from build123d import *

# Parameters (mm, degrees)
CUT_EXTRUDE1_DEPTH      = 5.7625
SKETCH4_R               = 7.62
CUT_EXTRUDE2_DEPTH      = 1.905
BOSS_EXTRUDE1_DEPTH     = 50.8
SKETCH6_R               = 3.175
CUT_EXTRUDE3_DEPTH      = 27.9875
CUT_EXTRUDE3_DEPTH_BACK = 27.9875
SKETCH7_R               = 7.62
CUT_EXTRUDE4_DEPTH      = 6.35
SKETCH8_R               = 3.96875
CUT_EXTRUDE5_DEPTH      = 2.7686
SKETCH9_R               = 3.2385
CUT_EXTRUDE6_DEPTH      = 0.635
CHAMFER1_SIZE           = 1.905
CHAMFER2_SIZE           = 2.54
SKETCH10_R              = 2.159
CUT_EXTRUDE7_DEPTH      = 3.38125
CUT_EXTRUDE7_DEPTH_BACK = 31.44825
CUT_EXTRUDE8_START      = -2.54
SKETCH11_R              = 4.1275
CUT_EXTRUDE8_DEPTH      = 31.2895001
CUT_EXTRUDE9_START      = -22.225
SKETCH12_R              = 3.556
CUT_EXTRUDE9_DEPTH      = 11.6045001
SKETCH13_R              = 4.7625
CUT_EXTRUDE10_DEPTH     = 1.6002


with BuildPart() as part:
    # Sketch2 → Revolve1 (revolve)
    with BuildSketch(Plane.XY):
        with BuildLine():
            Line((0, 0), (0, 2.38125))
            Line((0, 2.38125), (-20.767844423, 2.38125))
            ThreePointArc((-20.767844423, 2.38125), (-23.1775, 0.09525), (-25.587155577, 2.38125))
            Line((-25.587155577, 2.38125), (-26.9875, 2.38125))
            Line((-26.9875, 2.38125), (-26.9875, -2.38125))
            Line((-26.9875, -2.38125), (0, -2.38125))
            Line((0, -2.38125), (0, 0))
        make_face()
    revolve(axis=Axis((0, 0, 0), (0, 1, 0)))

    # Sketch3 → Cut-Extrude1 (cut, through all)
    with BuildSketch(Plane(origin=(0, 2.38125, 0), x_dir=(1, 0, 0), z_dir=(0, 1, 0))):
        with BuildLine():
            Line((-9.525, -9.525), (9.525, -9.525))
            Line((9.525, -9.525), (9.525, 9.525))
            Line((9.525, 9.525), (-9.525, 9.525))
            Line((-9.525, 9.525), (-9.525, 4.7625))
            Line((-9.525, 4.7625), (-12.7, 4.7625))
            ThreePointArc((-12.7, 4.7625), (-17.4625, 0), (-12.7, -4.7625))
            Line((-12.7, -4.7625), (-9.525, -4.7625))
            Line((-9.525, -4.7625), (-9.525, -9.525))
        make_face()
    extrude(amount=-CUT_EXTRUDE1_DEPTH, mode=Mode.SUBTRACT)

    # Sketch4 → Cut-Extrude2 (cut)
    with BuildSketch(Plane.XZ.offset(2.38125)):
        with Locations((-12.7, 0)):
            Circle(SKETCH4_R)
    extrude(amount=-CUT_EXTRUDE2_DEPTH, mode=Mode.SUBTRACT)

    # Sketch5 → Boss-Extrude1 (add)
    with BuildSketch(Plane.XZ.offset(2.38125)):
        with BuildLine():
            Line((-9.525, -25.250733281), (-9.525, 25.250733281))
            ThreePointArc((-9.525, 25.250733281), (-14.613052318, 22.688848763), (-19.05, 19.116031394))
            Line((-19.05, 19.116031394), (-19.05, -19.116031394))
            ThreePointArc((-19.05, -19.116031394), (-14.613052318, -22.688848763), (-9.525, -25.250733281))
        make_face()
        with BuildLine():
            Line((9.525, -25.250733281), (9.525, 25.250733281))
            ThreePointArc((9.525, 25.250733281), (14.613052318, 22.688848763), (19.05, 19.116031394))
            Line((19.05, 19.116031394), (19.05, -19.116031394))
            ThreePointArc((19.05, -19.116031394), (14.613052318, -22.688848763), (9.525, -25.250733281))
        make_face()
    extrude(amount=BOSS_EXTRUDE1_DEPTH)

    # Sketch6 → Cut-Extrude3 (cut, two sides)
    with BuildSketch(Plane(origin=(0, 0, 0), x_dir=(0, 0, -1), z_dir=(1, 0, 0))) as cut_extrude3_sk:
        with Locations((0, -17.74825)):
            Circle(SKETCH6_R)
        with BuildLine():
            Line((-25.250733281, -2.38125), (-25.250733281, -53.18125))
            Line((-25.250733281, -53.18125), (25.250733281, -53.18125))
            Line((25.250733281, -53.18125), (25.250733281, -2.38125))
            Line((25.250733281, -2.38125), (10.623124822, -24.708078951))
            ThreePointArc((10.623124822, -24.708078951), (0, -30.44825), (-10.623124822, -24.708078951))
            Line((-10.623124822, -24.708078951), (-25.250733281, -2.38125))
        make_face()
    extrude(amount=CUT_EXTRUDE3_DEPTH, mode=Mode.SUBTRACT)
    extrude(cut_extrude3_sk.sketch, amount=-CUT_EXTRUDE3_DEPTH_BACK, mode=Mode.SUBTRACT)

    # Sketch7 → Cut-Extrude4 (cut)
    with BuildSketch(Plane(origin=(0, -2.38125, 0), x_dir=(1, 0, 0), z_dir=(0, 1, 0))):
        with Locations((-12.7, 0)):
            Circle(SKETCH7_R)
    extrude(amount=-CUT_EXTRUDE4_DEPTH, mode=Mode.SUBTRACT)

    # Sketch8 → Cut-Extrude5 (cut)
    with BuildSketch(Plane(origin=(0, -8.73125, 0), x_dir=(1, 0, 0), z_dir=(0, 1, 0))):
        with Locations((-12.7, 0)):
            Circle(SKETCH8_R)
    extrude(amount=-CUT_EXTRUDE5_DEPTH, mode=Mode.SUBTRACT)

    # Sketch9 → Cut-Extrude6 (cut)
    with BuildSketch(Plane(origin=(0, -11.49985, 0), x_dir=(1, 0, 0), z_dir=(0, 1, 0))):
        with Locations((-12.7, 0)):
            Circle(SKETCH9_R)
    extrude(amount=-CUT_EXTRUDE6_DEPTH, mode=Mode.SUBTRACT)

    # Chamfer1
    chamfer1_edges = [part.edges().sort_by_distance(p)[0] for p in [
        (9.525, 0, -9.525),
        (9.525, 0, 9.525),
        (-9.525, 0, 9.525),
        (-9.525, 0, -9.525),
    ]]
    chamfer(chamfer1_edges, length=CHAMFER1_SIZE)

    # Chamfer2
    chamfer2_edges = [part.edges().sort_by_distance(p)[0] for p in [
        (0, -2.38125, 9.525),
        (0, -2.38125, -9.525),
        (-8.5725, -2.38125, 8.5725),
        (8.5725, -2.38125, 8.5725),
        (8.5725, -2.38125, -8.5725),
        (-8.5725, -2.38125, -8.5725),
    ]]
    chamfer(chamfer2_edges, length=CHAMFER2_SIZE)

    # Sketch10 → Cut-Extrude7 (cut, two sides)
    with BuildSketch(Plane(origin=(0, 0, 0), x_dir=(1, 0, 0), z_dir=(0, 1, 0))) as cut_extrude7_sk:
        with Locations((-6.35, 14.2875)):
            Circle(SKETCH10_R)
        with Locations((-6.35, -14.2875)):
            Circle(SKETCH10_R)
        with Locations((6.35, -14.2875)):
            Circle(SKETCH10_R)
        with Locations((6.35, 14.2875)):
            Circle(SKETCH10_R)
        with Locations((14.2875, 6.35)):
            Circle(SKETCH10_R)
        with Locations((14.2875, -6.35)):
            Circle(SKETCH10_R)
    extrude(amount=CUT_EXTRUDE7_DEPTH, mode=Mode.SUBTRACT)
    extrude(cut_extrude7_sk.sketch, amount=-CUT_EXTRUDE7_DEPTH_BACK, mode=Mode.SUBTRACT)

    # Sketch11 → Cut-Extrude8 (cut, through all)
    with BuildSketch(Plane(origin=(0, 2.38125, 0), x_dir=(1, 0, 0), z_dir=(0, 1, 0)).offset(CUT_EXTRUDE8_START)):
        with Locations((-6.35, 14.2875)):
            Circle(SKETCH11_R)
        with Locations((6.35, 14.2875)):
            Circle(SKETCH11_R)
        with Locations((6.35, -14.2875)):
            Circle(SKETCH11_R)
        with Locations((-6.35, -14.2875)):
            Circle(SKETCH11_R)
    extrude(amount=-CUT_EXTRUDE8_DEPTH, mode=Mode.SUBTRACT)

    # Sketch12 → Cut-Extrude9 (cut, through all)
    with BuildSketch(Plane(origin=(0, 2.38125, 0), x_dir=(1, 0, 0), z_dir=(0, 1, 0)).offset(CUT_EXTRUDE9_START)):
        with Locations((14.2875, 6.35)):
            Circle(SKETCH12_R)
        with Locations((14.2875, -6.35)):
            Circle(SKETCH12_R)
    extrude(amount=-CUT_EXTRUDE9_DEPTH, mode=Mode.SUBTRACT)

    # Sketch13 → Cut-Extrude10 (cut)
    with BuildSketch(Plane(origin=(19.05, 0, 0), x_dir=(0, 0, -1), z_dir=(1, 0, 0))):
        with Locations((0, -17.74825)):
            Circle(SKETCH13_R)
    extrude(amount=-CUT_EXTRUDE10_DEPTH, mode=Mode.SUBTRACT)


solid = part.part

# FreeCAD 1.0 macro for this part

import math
import FreeCAD as App
import Part
import Sketcher
from FreeCAD import Vector
Q = App.Units.Quantity


def edges_at(feature, points):
    """Names of the edges that pass closest to the given points."""
    edges = feature.Shape.Edges
    near = lambda p: min(range(len(edges)), key=lambda i: edges[i].distToShape(Part.Vertex(*p))[0])
    return sorted({f"Edge{near(p) + 1}" for p in points})

doc = App.newDocument("Part")
params = doc.addObject("Spreadsheet::Sheet", "Params")
for row, (alias, value) in enumerate([
    ("sketch1_radius", "0.095 in"),
    ("sketch1_width", "1.0625 in"),
    ("sketch1_height", "0.1875 in"),
    ("revolution_angle", "360 deg"),
    ("sketch2_radius", "0.1875 in"),
    ("sketch2_width", "0.75 in"),
    ("sketch3_diameter", "0.6 in"),
    ("pocket2_length", "0.075 in"),
    ("sketch4_radius", "1.0625 in"),
    ("pad1_length", "2 in"),
    ("sketch5_radius", "0.5 in"),
    ("sketch5_diameter", "0.25 in"),
    ("sketch5_width", "2 in"),
    ("sketch6_diameter", "0.6 in"),
    ("pocket4_length", "0.25 in"),
    ("sketch7_diameter", "0.3125 in"),
    ("pocket5_length", "0.109 in"),
    ("sketch8_diameter", "0.255 in"),
    ("pocket6_length", "0.025 in"),
    ("chamfer_size", "0.075 in"),
    ("chamfer2_size", "0.1 in"),
    ("sketch9_diameter", "0.17 in"),
    ("sketch10_diameter", "0.325 in"),
    ("sketch11_diameter", "0.28 in"),
    ("sketch12_diameter", "0.375 in"),
    ("pocket10_length", "0.063 in"),
], start=1):
    params.set(f"A{row}", alias)
    params.set(f"B{row}", "=" + value)
    params.setAlias(f"B{row}", alias)

body = doc.addObject("PartDesign::Body", "Body")

sketch1 = doc.addObject("Sketcher::SketchObject", "Sketch")
body.addObject(sketch1)
sketch1.AttachmentSupport = (doc.XY_Plane, [""])
sketch1.MapMode = "FlatFace"
sketch1.addGeometry([
    Part.LineSegment(Vector(0, 2.38125, 0), Vector(-20.767844, 2.38125, 0)),
    Part.ArcOfCircle(Part.Circle(Vector(-23.1775, 2.50825, 0), Vector(0, 0, 1), 2.413), math.radians(-176.983039), math.radians(-3.016961)),
    Part.LineSegment(Vector(-25.587156, 2.38125, 0), Vector(-26.9875, 2.38125, 0)),
    Part.LineSegment(Vector(-26.9875, 2.38125, 0), Vector(-26.9875, -2.38125, 0)),
    Part.LineSegment(Vector(-26.9875, -2.38125, 0), Vector(0, -2.38125, 0)),
    Part.LineSegment(Vector(0, -2.38125, 0), Vector(0, 2.38125, 0)),
], False)
sketch1.addConstraint([
    Sketcher.Constraint("Coincident", 0, 2, 1, 2),
    Sketcher.Constraint("Coincident", 1, 1, 2, 1),
    Sketcher.Constraint("Coincident", 2, 2, 3, 1),
    Sketcher.Constraint("Coincident", 3, 2, 4, 1),
    Sketcher.Constraint("Coincident", 4, 2, 5, 1),
    Sketcher.Constraint("Coincident", 5, 2, 0, 1),
    Sketcher.Constraint("Horizontal", 0),
    Sketcher.Constraint("Horizontal", 2),
    Sketcher.Constraint("Vertical", 3),
    Sketcher.Constraint("Horizontal", 4),
    Sketcher.Constraint("Vertical", 5),
    Sketcher.Constraint("Symmetric", 4, 2, 5, 2, -1, 1),
    Sketcher.Constraint("Horizontal", 0, 2, 1, 1),
    Sketcher.Constraint("Radius", 1, Q("0.095 in")),
    Sketcher.Constraint("DistanceX", 4, 1, 4, 2, Q("1.0625 in")),
    Sketcher.Constraint("DistanceY", 3, 2, 3, 1, Q("0.1875 in")),
    Sketcher.Constraint("DistanceX", 2, 2, 1, 3, Q("0.15 in")),
    Sketcher.Constraint("DistanceY", 0, 2, 1, 3, Q("0.005 in")),
])
sketch1.setExpression("Constraints[13]", "Params.sketch1_radius")
sketch1.setExpression("Constraints[14]", "Params.sketch1_width")
sketch1.setExpression("Constraints[15]", "Params.sketch1_height")
revolution = doc.addObject("PartDesign::Revolution", "Revolution")
body.addObject(revolution)
revolution.Profile = sketch1
revolution.ReferenceAxis = (sketch1, ["V_Axis"])
revolution.setExpression("Angle", "Params.revolution_angle")

sketch2 = doc.addObject("Sketcher::SketchObject", "Sketch001")
body.addObject(sketch2)
sketch2.AttachmentSupport = (doc.XZ_Plane, [""])
sketch2.MapMode = "FlatFace"
sketch2.AttachmentOffset = App.Placement(Vector(0, 0, -0.09375 * 25.4), App.Rotation())
sketch2.addGeometry([
    Part.LineSegment(Vector(-9.525, 9.525, 0), Vector(9.525, 9.525, 0)),
    Part.LineSegment(Vector(9.525, 9.525, 0), Vector(9.525, -9.525, 0)),
    Part.LineSegment(Vector(9.525, -9.525, 0), Vector(-9.525, -9.525, 0)),
    Part.LineSegment(Vector(-9.525, -9.525, 0), Vector(-9.525, -4.7625, 0)),
    Part.LineSegment(Vector(-9.525, -4.7625, 0), Vector(-12.7, -4.7625, 0)),
    Part.ArcOfCircle(Part.Circle(Vector(-12.7, 0, 0), Vector(0, 0, 1), 4.7625), math.radians(90), math.radians(270)),
    Part.LineSegment(Vector(-12.7, 4.7625, 0), Vector(-9.525, 4.7625, 0)),
    Part.LineSegment(Vector(-9.525, 4.7625, 0), Vector(-9.525, 9.525, 0)),
], False)
sketch2.addConstraint([
    Sketcher.Constraint("Coincident", 0, 2, 1, 1),
    Sketcher.Constraint("Coincident", 1, 2, 2, 1),
    Sketcher.Constraint("Coincident", 2, 2, 3, 1),
    Sketcher.Constraint("Coincident", 3, 2, 4, 1),
    Sketcher.Constraint("Tangent", 4, 2, 5, 2),
    Sketcher.Constraint("Tangent", 5, 1, 6, 1),
    Sketcher.Constraint("Coincident", 6, 2, 7, 1),
    Sketcher.Constraint("Coincident", 7, 2, 0, 1),
    Sketcher.Constraint("Horizontal", 0),
    Sketcher.Constraint("Vertical", 1),
    Sketcher.Constraint("Horizontal", 2),
    Sketcher.Constraint("Vertical", 3),
    Sketcher.Constraint("Horizontal", 4),
    Sketcher.Constraint("Horizontal", 6),
    Sketcher.Constraint("Vertical", 7),
    Sketcher.Constraint("Symmetric", 0, 2, 2, 2, -1, 1),
    Sketcher.Constraint("Symmetric", 3, 2, 6, 2, -1),
    Sketcher.Constraint("Equal", 2, 1),
    Sketcher.Constraint("Radius", 5, Q("0.1875 in")),
    Sketcher.Constraint("DistanceX", 0, 1, 0, 2, Q("0.75 in")),
    Sketcher.Constraint("DistanceX", 5, 3, -1, 1, Q("0.5 in")),
])
sketch2.setExpression("Constraints[18]", "Params.sketch2_radius")
sketch2.setExpression("Constraints[19]", "Params.sketch2_width")
pocket1 = doc.addObject("PartDesign::Pocket", "Pocket")
body.addObject(pocket1)
pocket1.Profile = sketch2
pocket1.Type = "ThroughAll"
pocket1.Reversed = True

sketch3 = doc.addObject("Sketcher::SketchObject", "Sketch002")
body.addObject(sketch3)
sketch3.AttachmentSupport = (doc.XZ_Plane, [""])
sketch3.MapMode = "FlatFace"
sketch3.AttachmentOffset = App.Placement(Vector(0, 0, 0.09375 * 25.4), App.Rotation())
sketch3.addGeometry(Part.Circle(Vector(-12.7, 0, 0), Vector(0, 0, 1), 7.62), False)
sketch3.addConstraint([
    Sketcher.Constraint("PointOnObject", 0, 3, -1),
    Sketcher.Constraint("Diameter", 0, Q("0.6 in")),
    Sketcher.Constraint("DistanceX", 0, 3, -1, 1, Q("0.5 in")),
])
sketch3.setExpression("Constraints[1]", "Params.sketch3_diameter")
pocket2 = doc.addObject("PartDesign::Pocket", "Pocket001")
body.addObject(pocket2)
pocket2.Profile = sketch3
pocket2.setExpression("Length", "Params.pocket2_length")

sketch4 = doc.addObject("Sketcher::SketchObject", "Sketch003")
body.addObject(sketch4)
sketch4.AttachmentSupport = (doc.XZ_Plane, [""])
sketch4.MapMode = "FlatFace"
sketch4.AttachmentOffset = App.Placement(Vector(0, 0, 0.09375 * 25.4), App.Rotation())
sketch4.addGeometry([
    Part.LineSegment(Vector(-9.525, -25.250733, 0), Vector(-9.525, 25.250733, 0)),
    Part.ArcOfCircle(Part.Circle(Vector(0, 0, 0), Vector(0, 0, 1), 26.9875), math.radians(110.667316), math.radians(134.900872)),
    Part.LineSegment(Vector(-19.05, 19.116031, 0), Vector(-19.05, -19.116031, 0)),
    Part.ArcOfCircle(Part.Circle(Vector(0, 0, 0), Vector(0, 0, 1), 26.9875), math.radians(-134.900872), math.radians(-110.667316)),
    Part.LineSegment(Vector(9.525, 25.250733, 0), Vector(9.525, -25.250733, 0)),
    Part.ArcOfCircle(Part.Circle(Vector(0, 0, 0), Vector(0, 0, 1), 26.9875), math.radians(-69.332684), math.radians(-45.099128)),
    Part.LineSegment(Vector(19.05, -19.116031, 0), Vector(19.05, 19.116031, 0)),
    Part.ArcOfCircle(Part.Circle(Vector(0, 0, 0), Vector(0, 0, 1), 26.9875), math.radians(45.099128), math.radians(69.332684)),
], False)
sketch4.addConstraint([
    Sketcher.Constraint("Coincident", 0, 2, 1, 1),
    Sketcher.Constraint("Coincident", 1, 2, 2, 1),
    Sketcher.Constraint("Coincident", 2, 2, 3, 1),
    Sketcher.Constraint("Coincident", 3, 2, 0, 1),
    Sketcher.Constraint("Coincident", 4, 2, 5, 1),
    Sketcher.Constraint("Coincident", 5, 2, 6, 1),
    Sketcher.Constraint("Coincident", 6, 2, 7, 1),
    Sketcher.Constraint("Coincident", 7, 2, 4, 1),
    Sketcher.Constraint("Vertical", 0),
    Sketcher.Constraint("Vertical", 2),
    Sketcher.Constraint("Vertical", 4),
    Sketcher.Constraint("Vertical", 6),
    Sketcher.Constraint("Coincident", 1, 3, -1, 1),
    Sketcher.Constraint("Coincident", 3, 3, -1, 1),
    Sketcher.Constraint("Coincident", 5, 3, -1, 1),
    Sketcher.Constraint("Coincident", 7, 3, -1, 1),
    Sketcher.Constraint("Equal", 1, 3),
    Sketcher.Constraint("Equal", 3, 5),
    Sketcher.Constraint("Equal", 5, 7),
    Sketcher.Constraint("Horizontal", 3, 2, 4, 2),
    Sketcher.Constraint("Horizontal", 2, 2, 5, 2),
    Sketcher.Constraint("Radius", 1, Q("1.0625 in")),
    Sketcher.Constraint("DistanceX", 1, 2, -1, 1, Q("0.75 in")),
    Sketcher.Constraint("DistanceX", 3, 2, 4, 2, Q("0.75 in")),
])
sketch4.setExpression("Constraints[21]", "Params.sketch4_radius")
pad1 = doc.addObject("PartDesign::Pad", "Pad")
body.addObject(pad1)
pad1.Profile = sketch4
pad1.setExpression("Length", "Params.pad1_length")

sketch5 = doc.addObject("Sketcher::SketchObject", "Sketch004")
body.addObject(sketch5)
sketch5.AttachmentSupport = (doc.YZ_Plane, [""])
sketch5.MapMode = "FlatFace"
sketch5.addGeometry([
    Part.Circle(Vector(-17.74825, 0, 0), Vector(0, 0, 1), 3.175),
    Part.LineSegment(Vector(-2.38125, 25.250733, 0), Vector(-53.18125, 25.250733, 0)),
    Part.LineSegment(Vector(-53.18125, 25.250733, 0), Vector(-53.18125, -25.250733, 0)),
    Part.LineSegment(Vector(-53.18125, -25.250733, 0), Vector(-2.38125, -25.250733, 0)),
    Part.LineSegment(Vector(-2.38125, -25.250733, 0), Vector(-24.708079, -10.623125, 0)),
    Part.ArcOfCircle(Part.Circle(Vector(-17.74825, 0, 0), Vector(0, 0, 1), 12.7), math.radians(123.231147), math.radians(236.768853)),
    Part.LineSegment(Vector(-24.708079, 10.623125, 0), Vector(-2.38125, 25.250733, 0)),
], False)
sketch5.addConstraint([
    Sketcher.Constraint("Coincident", 1, 2, 2, 1),
    Sketcher.Constraint("Coincident", 2, 2, 3, 1),
    Sketcher.Constraint("Coincident", 3, 2, 4, 1),
    Sketcher.Constraint("Tangent", 4, 2, 5, 2),
    Sketcher.Constraint("Tangent", 5, 1, 6, 1),
    Sketcher.Constraint("Coincident", 6, 2, 1, 1),
    Sketcher.Constraint("Horizontal", 1),
    Sketcher.Constraint("Vertical", 2),
    Sketcher.Constraint("Horizontal", 3),
    Sketcher.Constraint("Coincident", 5, 3, 0, 3),
    Sketcher.Constraint("Symmetric", 4, 2, 5, 1, -1),
    Sketcher.Constraint("Vertical", 3, 2, 6, 2),
    Sketcher.Constraint("Radius", 5, Q("0.5 in")),
    Sketcher.Constraint("Diameter", 0, Q("0.25 in")),
    Sketcher.Constraint("DistanceX", 1, 2, 1, 1, Q("2 in")),
    Sketcher.Constraint("DistanceX", 1, 2, -1, 1, Q("2.09375 in")),
    Sketcher.Constraint("DistanceX", 1, 2, 0, 3, Q("1.395 in")),
    Sketcher.Constraint("Distance", 4, 26.691838),
])
sketch5.setExpression("Constraints[12]", "Params.sketch5_radius")
sketch5.setExpression("Constraints[13]", "Params.sketch5_diameter")
sketch5.setExpression("Constraints[14]", "Params.sketch5_width")
pocket3 = doc.addObject("PartDesign::Pocket", "Pocket002")
body.addObject(pocket3)
pocket3.Profile = sketch5
pocket3.Type = "ThroughAll"
pocket3.Midplane = True

sketch6 = doc.addObject("Sketcher::SketchObject", "Sketch005")
body.addObject(sketch6)
sketch6.AttachmentSupport = (doc.XZ_Plane, [""])
sketch6.MapMode = "FlatFace"
sketch6.AttachmentOffset = App.Placement(Vector(0, 0, 0.09375 * 25.4), App.Rotation())
sketch6.addGeometry(Part.Circle(Vector(-12.7, 0, 0), Vector(0, 0, 1), 7.62), False)
sketch6.addConstraint([
    Sketcher.Constraint("PointOnObject", 0, 3, -1),
    Sketcher.Constraint("Diameter", 0, Q("0.6 in")),
    Sketcher.Constraint("DistanceX", 0, 3, -1, 1, Q("0.5 in")),
])
sketch6.setExpression("Constraints[1]", "Params.sketch6_diameter")
pocket4 = doc.addObject("PartDesign::Pocket", "Pocket003")
body.addObject(pocket4)
pocket4.Profile = sketch6
pocket4.setExpression("Length", "Params.pocket4_length")
pocket4.Reversed = True

sketch7 = doc.addObject("Sketcher::SketchObject", "Sketch006")
body.addObject(sketch7)
sketch7.AttachmentSupport = (doc.XZ_Plane, [""])
sketch7.MapMode = "FlatFace"
sketch7.AttachmentOffset = App.Placement(Vector(0, 0, 0.34375 * 25.4), App.Rotation())
sketch7.addGeometry(Part.Circle(Vector(-12.7, 0, 0), Vector(0, 0, 1), 3.96875), False)
sketch7.addConstraint([
    Sketcher.Constraint("PointOnObject", 0, 3, -1),
    Sketcher.Constraint("Diameter", 0, Q("0.3125 in")),
    Sketcher.Constraint("DistanceX", 0, 3, -1, 1, Q("0.5 in")),
])
sketch7.setExpression("Constraints[1]", "Params.sketch7_diameter")
pocket5 = doc.addObject("PartDesign::Pocket", "Pocket004")
body.addObject(pocket5)
pocket5.Profile = sketch7
pocket5.setExpression("Length", "Params.pocket5_length")
pocket5.Reversed = True

sketch8 = doc.addObject("Sketcher::SketchObject", "Sketch007")
body.addObject(sketch8)
sketch8.AttachmentSupport = (doc.XZ_Plane, [""])
sketch8.MapMode = "FlatFace"
sketch8.AttachmentOffset = App.Placement(Vector(0, 0, 11.49985), App.Rotation())
sketch8.addGeometry(Part.Circle(Vector(-12.7, 0, 0), Vector(0, 0, 1), 3.2385), False)
sketch8.addConstraint([
    Sketcher.Constraint("PointOnObject", 0, 3, -1),
    Sketcher.Constraint("Diameter", 0, Q("0.255 in")),
    Sketcher.Constraint("DistanceX", 0, 3, -1, 1, Q("0.5 in")),
])
sketch8.setExpression("Constraints[1]", "Params.sketch8_diameter")
pocket6 = doc.addObject("PartDesign::Pocket", "Pocket005")
body.addObject(pocket6)
pocket6.Profile = sketch8
pocket6.setExpression("Length", "Params.pocket6_length")
pocket6.Reversed = True
doc.recompute()

chamfer = doc.addObject("PartDesign::Chamfer", "Chamfer")
body.addObject(chamfer)
chamfer.Base = (pocket6, edges_at(pocket6, [
    (9.525, 0, -9.525),
    (9.525, 0, 9.525),
    (-9.525, 0, 9.525),
    (-9.525, 0, -9.525),
]))
chamfer.setExpression("Size", "Params.chamfer_size")
doc.recompute()

chamfer2 = doc.addObject("PartDesign::Chamfer", "Chamfer001")
body.addObject(chamfer2)
chamfer2.Base = (chamfer, edges_at(chamfer, [
    (0, -2.381, 9.525),
    (0, -2.381, -9.525),
    (-8.572, -2.381, 8.572),
    (8.572, -2.381, 8.572),
    (8.572, -2.381, -8.572),
    (-8.572, -2.381, -8.572),
]))
chamfer2.setExpression("Size", "Params.chamfer2_size")

sketch9 = doc.addObject("Sketcher::SketchObject", "Sketch008")
body.addObject(sketch9)
sketch9.AttachmentSupport = (doc.XZ_Plane, [""])
sketch9.MapMode = "FlatFace"
sketch9.addGeometry([
    Part.Circle(Vector(-6.35, -14.2875, 0), Vector(0, 0, 1), 2.159),
    Part.Circle(Vector(-6.35, 14.2875, 0), Vector(0, 0, 1), 2.159),
    Part.Circle(Vector(6.35, 14.2875, 0), Vector(0, 0, 1), 2.159),
    Part.Circle(Vector(6.35, -14.2875, 0), Vector(0, 0, 1), 2.159),
    Part.Circle(Vector(14.2875, -6.35, 0), Vector(0, 0, 1), 2.159),
    Part.Circle(Vector(14.2875, 6.35, 0), Vector(0, 0, 1), 2.159),
], False)
sketch9.addConstraint([
    Sketcher.Constraint("Equal", 0, 1),
    Sketcher.Constraint("Equal", 1, 2),
    Sketcher.Constraint("Equal", 2, 3),
    Sketcher.Constraint("Equal", 3, 4),
    Sketcher.Constraint("Equal", 4, 5),
    Sketcher.Constraint("Symmetric", 0, 3, 2, 3, -1, 1),
    Sketcher.Constraint("Symmetric", 1, 3, 3, 3, -1, 1),
    Sketcher.Constraint("Symmetric", 1, 3, 2, 3, -2),
    Sketcher.Constraint("Symmetric", 4, 3, 5, 3, -1),
    Sketcher.Constraint("Diameter", 0, Q("0.17 in")),
    Sketcher.Constraint("DistanceX", 1, 3, 2, 3, Q("0.5 in")),
    Sketcher.Constraint("DistanceY", 4, 3, 5, 3, Q("0.5 in")),
    Sketcher.Constraint("DistanceY", 0, 3, -1, 1, Q("0.5625 in")),
    Sketcher.Constraint("DistanceX", -1, 1, 4, 3, Q("0.5625 in")),
])
sketch9.setExpression("Constraints[9]", "Params.sketch9_diameter")
pocket7 = doc.addObject("PartDesign::Pocket", "Pocket006")
body.addObject(pocket7)
pocket7.Profile = sketch9
pocket7.Type = "ThroughAll"
pocket7.Midplane = True

sketch10 = doc.addObject("Sketcher::SketchObject", "Sketch009")
body.addObject(sketch10)
sketch10.AttachmentSupport = (doc.XZ_Plane, [""])
sketch10.MapMode = "FlatFace"
sketch10.AttachmentOffset = App.Placement(Vector(0, 0, 0.15875), App.Rotation())
sketch10.addGeometry([
    Part.Circle(Vector(-6.35, -14.2875, 0), Vector(0, 0, 1), 4.1275),
    Part.Circle(Vector(6.35, -14.2875, 0), Vector(0, 0, 1), 4.1275),
    Part.Circle(Vector(6.35, 14.2875, 0), Vector(0, 0, 1), 4.1275),
    Part.Circle(Vector(-6.35, 14.2875, 0), Vector(0, 0, 1), 4.1275),
], False)
sketch10.addConstraint([
    Sketcher.Constraint("Equal", 0, 1),
    Sketcher.Constraint("Equal", 1, 2),
    Sketcher.Constraint("Equal", 2, 3),
    Sketcher.Constraint("Symmetric", 0, 3, 2, 3, -1, 1),
    Sketcher.Constraint("Symmetric", 1, 3, 3, 3, -1, 1),
    Sketcher.Constraint("Symmetric", 0, 3, 1, 3, -2),
    Sketcher.Constraint("Diameter", 0, Q("0.325 in")),
    Sketcher.Constraint("DistanceX", 0, 3, 1, 3, Q("0.5 in")),
    Sketcher.Constraint("DistanceY", 0, 3, -1, 1, Q("0.5625 in")),
])
sketch10.setExpression("Constraints[6]", "Params.sketch10_diameter")
pocket8 = doc.addObject("PartDesign::Pocket", "Pocket007")
body.addObject(pocket8)
pocket8.Profile = sketch10
pocket8.Type = "ThroughAll"
pocket8.Reversed = True

sketch11 = doc.addObject("Sketcher::SketchObject", "Sketch010")
body.addObject(sketch11)
sketch11.AttachmentSupport = (doc.XZ_Plane, [""])
sketch11.MapMode = "FlatFace"
sketch11.AttachmentOffset = App.Placement(Vector(0, 0, 0.78125 * 25.4), App.Rotation())
sketch11.addGeometry([
    Part.Circle(Vector(14.2875, -6.35, 0), Vector(0, 0, 1), 3.556),
    Part.Circle(Vector(14.2875, 6.35, 0), Vector(0, 0, 1), 3.556),
], False)
sketch11.addConstraint([
    Sketcher.Constraint("Equal", 0, 1),
    Sketcher.Constraint("Symmetric", 0, 3, 1, 3, -1),
    Sketcher.Constraint("Diameter", 0, Q("0.28 in")),
    Sketcher.Constraint("DistanceY", 0, 3, 1, 3, Q("0.5 in")),
    Sketcher.Constraint("DistanceX", -1, 1, 0, 3, Q("0.5625 in")),
])
sketch11.setExpression("Constraints[2]", "Params.sketch11_diameter")
pocket9 = doc.addObject("PartDesign::Pocket", "Pocket008")
body.addObject(pocket9)
pocket9.Profile = sketch11
pocket9.Type = "ThroughAll"
pocket9.Reversed = True

sketch12 = doc.addObject("Sketcher::SketchObject", "Sketch011")
body.addObject(sketch12)
sketch12.AttachmentSupport = (doc.YZ_Plane, [""])
sketch12.MapMode = "FlatFace"
sketch12.AttachmentOffset = App.Placement(Vector(0, 0, 0.75 * 25.4), App.Rotation())
sketch12.addGeometry(Part.Circle(Vector(-17.74825, 0, 0), Vector(0, 0, 1), 4.7625), False)
sketch12.addConstraint([
    Sketcher.Constraint("PointOnObject", 0, 3, -1),
    Sketcher.Constraint("Diameter", 0, Q("0.375 in")),
    Sketcher.Constraint("DistanceX", 0, 3, -1, 1, 17.74825),
])
sketch12.setExpression("Constraints[1]", "Params.sketch12_diameter")
pocket10 = doc.addObject("PartDesign::Pocket", "Pocket009")
body.addObject(pocket10)
pocket10.Profile = sketch12
pocket10.setExpression("Length", "Params.pocket10_length")

doc.recompute()
